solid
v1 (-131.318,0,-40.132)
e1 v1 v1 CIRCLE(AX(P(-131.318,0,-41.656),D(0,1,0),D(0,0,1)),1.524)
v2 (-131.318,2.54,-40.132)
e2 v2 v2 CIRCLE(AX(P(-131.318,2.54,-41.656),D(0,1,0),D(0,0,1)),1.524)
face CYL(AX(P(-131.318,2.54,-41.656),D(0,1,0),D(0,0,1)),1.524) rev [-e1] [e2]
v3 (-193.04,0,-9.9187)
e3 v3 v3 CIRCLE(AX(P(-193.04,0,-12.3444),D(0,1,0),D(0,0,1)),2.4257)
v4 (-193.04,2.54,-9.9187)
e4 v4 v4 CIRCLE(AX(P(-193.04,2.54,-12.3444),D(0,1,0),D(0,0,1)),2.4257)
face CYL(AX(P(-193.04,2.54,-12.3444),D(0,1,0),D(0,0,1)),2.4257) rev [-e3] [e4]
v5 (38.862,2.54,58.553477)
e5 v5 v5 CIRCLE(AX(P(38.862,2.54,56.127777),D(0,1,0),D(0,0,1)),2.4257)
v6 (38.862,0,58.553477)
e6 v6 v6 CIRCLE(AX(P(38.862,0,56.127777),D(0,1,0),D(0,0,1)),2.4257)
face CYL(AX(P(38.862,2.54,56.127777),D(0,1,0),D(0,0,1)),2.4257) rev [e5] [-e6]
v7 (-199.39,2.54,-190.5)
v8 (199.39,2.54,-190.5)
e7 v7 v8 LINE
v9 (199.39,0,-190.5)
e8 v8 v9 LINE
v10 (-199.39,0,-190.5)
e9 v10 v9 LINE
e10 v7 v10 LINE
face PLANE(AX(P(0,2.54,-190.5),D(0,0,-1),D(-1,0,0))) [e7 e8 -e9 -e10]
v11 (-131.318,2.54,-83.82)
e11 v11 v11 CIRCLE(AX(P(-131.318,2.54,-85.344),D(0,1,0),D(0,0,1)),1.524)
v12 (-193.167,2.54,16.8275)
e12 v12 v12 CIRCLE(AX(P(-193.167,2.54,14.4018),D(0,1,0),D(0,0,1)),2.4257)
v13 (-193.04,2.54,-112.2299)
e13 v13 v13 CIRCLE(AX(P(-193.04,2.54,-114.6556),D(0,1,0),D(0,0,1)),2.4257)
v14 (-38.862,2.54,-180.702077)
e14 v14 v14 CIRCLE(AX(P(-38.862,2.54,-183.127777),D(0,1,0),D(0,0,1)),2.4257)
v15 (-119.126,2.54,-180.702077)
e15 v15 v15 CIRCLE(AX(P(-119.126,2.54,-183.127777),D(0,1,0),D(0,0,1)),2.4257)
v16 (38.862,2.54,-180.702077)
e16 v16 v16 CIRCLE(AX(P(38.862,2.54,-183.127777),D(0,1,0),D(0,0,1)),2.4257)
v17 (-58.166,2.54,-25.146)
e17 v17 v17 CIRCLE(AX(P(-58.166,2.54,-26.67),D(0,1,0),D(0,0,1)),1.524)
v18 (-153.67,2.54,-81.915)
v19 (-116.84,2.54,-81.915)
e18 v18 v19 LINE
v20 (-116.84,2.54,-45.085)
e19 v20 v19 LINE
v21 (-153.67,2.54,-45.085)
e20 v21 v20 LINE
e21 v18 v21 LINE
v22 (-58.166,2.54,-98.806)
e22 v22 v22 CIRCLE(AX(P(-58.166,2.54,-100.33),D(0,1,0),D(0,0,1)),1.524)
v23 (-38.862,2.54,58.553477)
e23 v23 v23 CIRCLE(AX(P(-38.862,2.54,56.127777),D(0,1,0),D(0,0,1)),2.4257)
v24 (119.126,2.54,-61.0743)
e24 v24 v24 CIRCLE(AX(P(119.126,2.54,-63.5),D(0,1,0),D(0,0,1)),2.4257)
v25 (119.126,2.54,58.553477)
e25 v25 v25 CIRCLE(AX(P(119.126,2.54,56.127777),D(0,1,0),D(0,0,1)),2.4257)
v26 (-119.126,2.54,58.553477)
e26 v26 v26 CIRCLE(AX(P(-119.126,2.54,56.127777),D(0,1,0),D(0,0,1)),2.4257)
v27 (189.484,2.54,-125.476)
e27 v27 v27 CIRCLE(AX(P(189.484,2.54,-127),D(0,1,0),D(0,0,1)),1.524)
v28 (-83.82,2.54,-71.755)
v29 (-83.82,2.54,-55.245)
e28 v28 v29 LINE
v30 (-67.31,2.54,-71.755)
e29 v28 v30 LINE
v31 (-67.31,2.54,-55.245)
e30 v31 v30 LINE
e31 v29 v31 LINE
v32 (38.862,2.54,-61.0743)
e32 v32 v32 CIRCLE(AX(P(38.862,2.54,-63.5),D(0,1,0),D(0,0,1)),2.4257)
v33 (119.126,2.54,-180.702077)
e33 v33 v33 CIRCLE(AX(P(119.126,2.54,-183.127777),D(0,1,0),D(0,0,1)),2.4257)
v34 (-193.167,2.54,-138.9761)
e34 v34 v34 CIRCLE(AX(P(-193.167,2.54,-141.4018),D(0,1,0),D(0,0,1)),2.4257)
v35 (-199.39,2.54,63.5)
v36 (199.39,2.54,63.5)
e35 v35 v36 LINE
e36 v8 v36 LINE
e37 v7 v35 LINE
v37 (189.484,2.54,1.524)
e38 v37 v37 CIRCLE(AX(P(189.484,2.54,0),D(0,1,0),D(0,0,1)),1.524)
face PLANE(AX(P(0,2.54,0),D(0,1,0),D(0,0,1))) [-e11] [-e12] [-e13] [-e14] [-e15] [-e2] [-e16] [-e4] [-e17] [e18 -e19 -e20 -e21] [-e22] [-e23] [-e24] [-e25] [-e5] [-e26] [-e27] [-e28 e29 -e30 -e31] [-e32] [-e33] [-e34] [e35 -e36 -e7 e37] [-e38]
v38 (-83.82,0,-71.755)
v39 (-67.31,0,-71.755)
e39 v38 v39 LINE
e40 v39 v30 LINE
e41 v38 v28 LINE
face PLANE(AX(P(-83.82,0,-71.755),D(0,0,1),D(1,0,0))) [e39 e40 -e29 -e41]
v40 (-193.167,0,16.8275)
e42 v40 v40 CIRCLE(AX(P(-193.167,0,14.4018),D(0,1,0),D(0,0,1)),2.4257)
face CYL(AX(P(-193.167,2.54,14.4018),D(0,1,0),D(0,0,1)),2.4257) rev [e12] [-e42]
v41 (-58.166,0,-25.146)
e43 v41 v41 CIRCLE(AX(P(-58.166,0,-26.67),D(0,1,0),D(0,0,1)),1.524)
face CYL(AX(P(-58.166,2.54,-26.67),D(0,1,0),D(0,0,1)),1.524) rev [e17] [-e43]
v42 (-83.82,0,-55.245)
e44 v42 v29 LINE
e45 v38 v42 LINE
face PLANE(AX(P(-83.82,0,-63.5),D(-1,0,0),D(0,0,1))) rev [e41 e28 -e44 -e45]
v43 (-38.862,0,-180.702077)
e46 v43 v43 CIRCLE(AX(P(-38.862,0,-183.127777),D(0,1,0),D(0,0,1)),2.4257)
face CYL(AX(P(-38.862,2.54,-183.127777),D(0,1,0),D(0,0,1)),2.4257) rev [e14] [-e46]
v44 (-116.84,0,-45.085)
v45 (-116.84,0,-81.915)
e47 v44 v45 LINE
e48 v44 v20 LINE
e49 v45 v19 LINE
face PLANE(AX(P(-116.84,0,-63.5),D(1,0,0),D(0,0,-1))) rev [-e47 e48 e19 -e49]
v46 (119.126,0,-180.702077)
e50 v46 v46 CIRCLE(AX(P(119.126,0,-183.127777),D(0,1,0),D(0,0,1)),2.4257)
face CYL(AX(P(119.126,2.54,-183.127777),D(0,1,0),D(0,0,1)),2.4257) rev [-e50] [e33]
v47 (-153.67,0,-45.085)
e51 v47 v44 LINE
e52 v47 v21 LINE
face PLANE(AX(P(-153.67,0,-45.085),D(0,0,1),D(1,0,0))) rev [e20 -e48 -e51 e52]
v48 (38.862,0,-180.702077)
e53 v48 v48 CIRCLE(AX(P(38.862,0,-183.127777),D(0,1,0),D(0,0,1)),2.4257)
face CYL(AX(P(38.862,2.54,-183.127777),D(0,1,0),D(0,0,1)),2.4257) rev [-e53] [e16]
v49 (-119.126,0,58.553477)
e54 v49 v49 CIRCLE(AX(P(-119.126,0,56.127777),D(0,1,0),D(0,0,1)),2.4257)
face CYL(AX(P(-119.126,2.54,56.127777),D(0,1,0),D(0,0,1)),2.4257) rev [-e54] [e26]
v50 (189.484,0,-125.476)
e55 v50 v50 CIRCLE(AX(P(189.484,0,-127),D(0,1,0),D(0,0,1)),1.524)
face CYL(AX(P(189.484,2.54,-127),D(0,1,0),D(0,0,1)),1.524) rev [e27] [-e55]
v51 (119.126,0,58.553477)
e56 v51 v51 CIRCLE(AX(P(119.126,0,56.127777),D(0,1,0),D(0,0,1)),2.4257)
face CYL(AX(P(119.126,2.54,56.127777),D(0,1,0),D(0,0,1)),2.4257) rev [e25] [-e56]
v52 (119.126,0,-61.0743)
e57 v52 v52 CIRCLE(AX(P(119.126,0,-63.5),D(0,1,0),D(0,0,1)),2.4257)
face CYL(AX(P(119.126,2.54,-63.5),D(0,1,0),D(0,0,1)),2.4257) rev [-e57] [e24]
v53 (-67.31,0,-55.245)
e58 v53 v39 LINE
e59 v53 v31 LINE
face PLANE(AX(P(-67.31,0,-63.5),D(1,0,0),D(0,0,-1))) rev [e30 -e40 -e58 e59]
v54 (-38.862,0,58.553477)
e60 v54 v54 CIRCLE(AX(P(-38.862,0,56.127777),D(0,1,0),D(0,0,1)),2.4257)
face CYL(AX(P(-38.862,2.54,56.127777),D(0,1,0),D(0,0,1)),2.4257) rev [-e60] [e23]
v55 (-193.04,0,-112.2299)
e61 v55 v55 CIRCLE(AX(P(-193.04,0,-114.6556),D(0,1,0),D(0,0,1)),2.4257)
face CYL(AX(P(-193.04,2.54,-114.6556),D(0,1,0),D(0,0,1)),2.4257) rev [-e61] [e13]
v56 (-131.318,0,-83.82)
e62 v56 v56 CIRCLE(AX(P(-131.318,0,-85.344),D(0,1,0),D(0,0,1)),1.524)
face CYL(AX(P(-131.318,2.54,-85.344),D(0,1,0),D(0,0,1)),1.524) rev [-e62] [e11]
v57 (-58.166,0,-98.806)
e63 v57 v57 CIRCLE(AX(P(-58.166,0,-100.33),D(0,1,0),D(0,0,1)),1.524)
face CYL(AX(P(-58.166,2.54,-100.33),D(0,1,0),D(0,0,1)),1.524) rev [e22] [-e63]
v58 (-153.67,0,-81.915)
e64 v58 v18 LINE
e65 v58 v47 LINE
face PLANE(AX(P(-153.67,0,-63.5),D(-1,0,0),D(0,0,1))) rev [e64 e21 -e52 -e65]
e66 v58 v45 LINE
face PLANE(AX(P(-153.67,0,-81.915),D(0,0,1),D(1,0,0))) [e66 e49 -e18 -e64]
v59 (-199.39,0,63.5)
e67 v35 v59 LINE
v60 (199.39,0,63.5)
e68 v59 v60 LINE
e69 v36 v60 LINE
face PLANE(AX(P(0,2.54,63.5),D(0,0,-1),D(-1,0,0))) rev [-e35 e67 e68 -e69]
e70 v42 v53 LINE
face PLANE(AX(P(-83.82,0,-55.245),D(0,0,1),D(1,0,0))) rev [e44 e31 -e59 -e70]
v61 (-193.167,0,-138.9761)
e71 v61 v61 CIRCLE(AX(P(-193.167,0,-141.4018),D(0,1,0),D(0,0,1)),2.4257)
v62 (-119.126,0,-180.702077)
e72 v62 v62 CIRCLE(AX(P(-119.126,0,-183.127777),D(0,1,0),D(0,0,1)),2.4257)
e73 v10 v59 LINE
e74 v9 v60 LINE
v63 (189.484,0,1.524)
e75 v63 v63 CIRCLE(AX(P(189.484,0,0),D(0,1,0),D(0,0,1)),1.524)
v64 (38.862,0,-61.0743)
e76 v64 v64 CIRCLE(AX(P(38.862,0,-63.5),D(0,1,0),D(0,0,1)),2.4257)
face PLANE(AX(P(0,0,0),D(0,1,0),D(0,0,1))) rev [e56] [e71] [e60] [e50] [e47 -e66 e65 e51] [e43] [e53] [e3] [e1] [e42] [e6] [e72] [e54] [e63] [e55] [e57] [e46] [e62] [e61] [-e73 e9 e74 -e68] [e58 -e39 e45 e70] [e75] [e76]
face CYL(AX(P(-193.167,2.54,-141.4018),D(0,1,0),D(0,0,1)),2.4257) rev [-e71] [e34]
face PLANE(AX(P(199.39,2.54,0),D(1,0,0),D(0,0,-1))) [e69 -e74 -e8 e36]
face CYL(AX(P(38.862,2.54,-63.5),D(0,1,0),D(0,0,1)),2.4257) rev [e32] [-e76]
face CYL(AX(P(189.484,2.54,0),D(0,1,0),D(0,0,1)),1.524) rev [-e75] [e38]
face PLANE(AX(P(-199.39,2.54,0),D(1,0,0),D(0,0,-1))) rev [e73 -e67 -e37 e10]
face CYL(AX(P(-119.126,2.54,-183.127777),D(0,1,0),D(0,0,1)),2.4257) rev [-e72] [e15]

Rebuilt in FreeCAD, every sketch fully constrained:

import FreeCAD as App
import Part
import Sketcher

V = App.Vector
Q = App.Units.Quantity

doc = App.newDocument("Part")
params = doc.addObject("Spreadsheet::Sheet", "Params")
for row, (alias, value) in enumerate([
    ("sketch1_height", "5 in"),
    ("sketch1_width", "15.7 in"),
    ("pad1_length", "0.1 in"),
    ("sketch2_diameter", "0.191 in"),
    ("hole_diameter", "0.191 in"),
    ("sketch3_diameter", "0.191 in"),
    ("hole2_diameter", "0.191 in"),
    ("sketch4_width", "1.45 in"),
    ("sketch4_width2", "0.65 in"),
    ("sketch4_height", "0.725 in"),
    ("pocket1_length", "0.1 in"),
    ("sketch5_diameter", "0.191 in"),
    ("hole3_diameter", "0.191 in"),
    ("sketch6_diameter", "0.12 in"),
    ("hole4_diameter", "0.12 in"),
    ("sketch7_diameter", "0.12 in"),
    ("hole5_diameter", "0.12 in"),
    ("sketch8_diameter", "0.12 in"),
    ("hole6_diameter", "0.12 in"),
], start=1):
    params.set(f"A{row}", alias)
    params.set(f"B{row}", "=" + value)
    params.setAlias(f"B{row}", alias)

body = doc.addObject("PartDesign::Body", "Body")

# Sketch on XZ plane
sketch1 = doc.addObject("Sketcher::SketchObject", "Sketch")
body.addObject(sketch1)
sketch1.AttachmentSupport = (doc.XZ_Plane, [""])
sketch1.MapMode = "FlatFace"
sketch1.addGeometry([
    Part.LineSegment(V(-199, -64, 0), V(-199, 64, 0)),
    Part.LineSegment(V(-199, 64, 0), V(199, 64, 0)),
    Part.LineSegment(V(199, 64, 0), V(199, -64, 0)),
    Part.LineSegment(V(199, -64, 0), V(-199, -64, 0)),
], False)
sketch1.addConstraint([
    Sketcher.Constraint("Coincident", 0, 2, 1, 1),
    Sketcher.Constraint("Coincident", 1, 2, 2, 1),
    Sketcher.Constraint("Coincident", 2, 2, 3, 1),
    Sketcher.Constraint("Coincident", 3, 2, 0, 1),
    Sketcher.Constraint("Vertical", 0),
    Sketcher.Constraint("Horizontal", 1),
    Sketcher.Constraint("Vertical", 2),
    Sketcher.Constraint("Horizontal", 3),
    Sketcher.Constraint("Symmetric", 0, 2, 2, 2, -1, 1),
    Sketcher.Constraint("DistanceY", 0, 1, 0, 2, Q("5 in")),
    Sketcher.Constraint("DistanceX", 1, 1, 1, 2, Q("15.7 in")),
])
sketch1.setExpression("Constraints[9]", "Params.sketch1_height")
sketch1.setExpression("Constraints[10]", "Params.sketch1_width")
pad1 = doc.addObject("PartDesign::Pad", "Pad")
body.addObject(pad1)
pad1.Profile = sketch1
pad1.setExpression("Length", "Params.pad1_length")
pad1.Reversed = True

# Sketch on XZ plane
sketch2 = doc.addObject("Sketcher::SketchObject", "Sketch001")
body.addObject(sketch2)
sketch2.AttachmentSupport = (doc.XZ_Plane, [""])
sketch2.MapMode = "FlatFace"
sketch2.AttachmentOffset = App.Placement(V(0, 0, -0.1 * 25.4), App.Rotation())
sketch2.addGeometry([
    Part.Circle(V(-193.2, 14.4, 0), V(0, 0, 1), 2.4),
    Part.Circle(V(-193, -12.3, 0), V(0, 0, 1), 2.4),
], False)
sketch2.addConstraint([
    Sketcher.Constraint("Equal", 0, 1),
    Sketcher.Constraint("Diameter", 0, Q("0.191 in")),
    Sketcher.Constraint("DistanceX", 1, 3, -1, 1, Q("7.6 in")),
    Sketcher.Constraint("DistanceX", 0, 3, -1, 1, Q("7.605 in")),
    Sketcher.Constraint("DistanceY", -1, 1, 0, 3, Q("0.567 in")),
    Sketcher.Constraint("DistanceY", 1, 3, -1, 1, Q("0.486 in")),
])
sketch2.setExpression("Constraints[1]", "Params.sketch2_diameter")
doc.recompute()
hole = doc.addObject("PartDesign::Hole", "Hole")
body.addObject(hole)
hole.Profile = sketch2
hole.ThreadType = "None"
hole.setExpression("Diameter", "Params.hole_diameter")
hole.DepthType = "ThroughAll"
hole.Reversed = True

# Sketch on XZ plane
sketch3 = doc.addObject("Sketcher::SketchObject", "Sketch002")
body.addObject(sketch3)
sketch3.AttachmentSupport = (doc.XZ_Plane, [""])
sketch3.MapMode = "FlatFace"
sketch3.AttachmentOffset = App.Placement(V(0, 0, -0.1 * 25.4), App.Rotation())
sketch3.addGeometry([
    Part.Circle(V(-119.1, 56.1, 0), V(0, 0, 1), 2.4),
    Part.Circle(V(-38.9, 56.1, 0), V(0, 0, 1), 2.4),
    Part.Circle(V(38.9, 56.1, 0), V(0, 0, 1), 2.4),
    Part.Circle(V(119.1, 56.1, 0), V(0, 0, 1), 2.4),
], False)
sketch3.addConstraint([
    Sketcher.Constraint("Equal", 0, 1),
    Sketcher.Constraint("Equal", 1, 2),
    Sketcher.Constraint("Equal", 2, 3),
    Sketcher.Constraint("Symmetric", 1, 3, 2, 3, -2),
    Sketcher.Constraint("Symmetric", 0, 3, 3, 3, -2),
    Sketcher.Constraint("Horizontal", 0, 3, 1, 3),
    Sketcher.Constraint("Diameter", 0, Q("0.191 in")),
    Sketcher.Constraint("DistanceX", 0, 3, -1, 1, Q("4.69 in")),
    Sketcher.Constraint("DistanceX", 1, 3, -1, 1, Q("1.53 in")),
    Sketcher.Constraint("DistanceY", -1, 1, 0, 3, Q("56.127777 mm")),
])
sketch3.setExpression("Constraints[6]", "Params.sketch3_diameter")
doc.recompute()
hole2 = doc.addObject("PartDesign::Hole", "Hole001")
body.addObject(hole2)
hole2.Profile = sketch3
hole2.ThreadType = "None"
hole2.setExpression("Diameter", "Params.hole2_diameter")
hole2.DepthType = "ThroughAll"
hole2.Reversed = True

# Sketch on XZ plane
sketch4 = doc.addObject("Sketcher::SketchObject", "Sketch003")
body.addObject(sketch4)
sketch4.AttachmentSupport = (doc.XZ_Plane, [""])
sketch4.MapMode = "FlatFace"
sketch4.AttachmentOffset = App.Placement(V(0, 0, -0.1 * 25.4), App.Rotation())
sketch4.addGeometry([
    Part.LineSegment(V(-154, -64, 0), V(-154, -45, 0)),  # 0
    Part.LineSegment(V(-154, -45, 0), V(-117, -45, 0)),  # 1
    Part.LineSegment(V(-117, -45, 0), V(-117, -64, 0)),  # 2
    Part.LineSegment(V(-117, -64, 0), V(-154, -64, 0)),  # 3
    Part.LineSegment(V(-84, -64, 0), V(-84, -55, 0)),  # 4
    Part.LineSegment(V(-84, -55, 0), V(-67, -55, 0)),  # 5
    Part.LineSegment(V(-67, -55, 0), V(-67, -64, 0)),  # 6
    Part.LineSegment(V(-67, -64, 0), V(-84, -64, 0)),  # 7
], False)
sketch4.addConstraint([
    Sketcher.Constraint("Coincident", 0, 2, 1, 1),
    Sketcher.Constraint("Coincident", 1, 2, 2, 1),
    Sketcher.Constraint("Coincident", 2, 2, 3, 1),
    Sketcher.Constraint("Coincident", 3, 2, 0, 1),
    Sketcher.Constraint("Coincident", 4, 2, 5, 1),
    Sketcher.Constraint("Coincident", 5, 2, 6, 1),
    Sketcher.Constraint("Coincident", 6, 2, 7, 1),
    Sketcher.Constraint("Coincident", 7, 2, 4, 1),
    Sketcher.Constraint("Vertical", 0),
    Sketcher.Constraint("Horizontal", 1),
    Sketcher.Constraint("Vertical", 2),
    Sketcher.Constraint("Horizontal", 3),
    Sketcher.Constraint("Vertical", 4),
    Sketcher.Constraint("Horizontal", 5),
    Sketcher.Constraint("Vertical", 6),
    Sketcher.Constraint("Horizontal", 7),
    Sketcher.Constraint("Horizontal", 3, 2, 6, 2),
    Sketcher.Constraint("DistanceX", 1, 1, 1, 2, Q("1.45 in")),
    Sketcher.Constraint("DistanceX", 5, 1, 5, 2, Q("0.65 in")),
    Sketcher.Constraint("DistanceX", 1, 2, -1, 1, Q("4.6 in")),
    Sketcher.Constraint("DistanceY", 2, 2, -1, 1, Q("2.5 in")),
    Sketcher.Constraint("DistanceX", 4, 2, -1, 1, Q("3.3 in")),
    Sketcher.Constraint("DistanceY", 4, 2, 1, 2, Q("0.4 in")),
    Sketcher.Constraint("DistanceY", 0, 1, 0, 2, Q("0.725 in")),
])
sketch4.setExpression("Constraints[17]", "Params.sketch4_width")
sketch4.setExpression("Constraints[18]", "Params.sketch4_width2")
sketch4.setExpression("Constraints[23]", "Params.sketch4_height")
pocket1 = doc.addObject("PartDesign::Pocket", "Pocket")
body.addObject(pocket1)
pocket1.Profile = sketch4
pocket1.setExpression("Length", "Params.pocket1_length")
pocket1.Reversed = True
doc.recompute()

datumplane = doc.addObject("PartDesign::Plane", "DatumPlane")
body.addObject(datumplane)
datumplane.AttachmentSupport = (doc.XY_Plane, [""])
datumplane.MapMode = "FlatFace"
datumplane.AttachmentOffset = App.Placement(V(0, 0, -2.5 * 25.4), App.Rotation())
mirrored = doc.addObject("PartDesign::Mirrored", "Mirrored")
body.addObject(mirrored)
mirrored.Originals = [pad1, hole, hole2, pocket1]
mirrored.MirrorPlane = (datumplane, [""])
body.Tip = mirrored

# Sketch on XZ plane
sketch5 = doc.addObject("Sketcher::SketchObject", "Sketch004")
body.addObject(sketch5)
sketch5.AttachmentSupport = (doc.XZ_Plane, [""])
sketch5.MapMode = "FlatFace"
sketch5.AttachmentOffset = App.Placement(V(0, 0, -0.1 * 25.4), App.Rotation())
sketch5.addGeometry([
    Part.Circle(V(119.1, -63.5, 0), V(0, 0, 1), 2.4),
    Part.Circle(V(38.9, -63.5, 0), V(0, 0, 1), 2.4),
], False)
sketch5.addConstraint([
    Sketcher.Constraint("Equal", 0, 1),
    Sketcher.Constraint("Horizontal", 0, 3, 1, 3),
    Sketcher.Constraint("Diameter", 0, Q("0.191 in")),
    Sketcher.Constraint("DistanceY", 0, 3, -1, 1, Q("2.5 in")),
    Sketcher.Constraint("DistanceX", -1, 1, 0, 3, Q("4.69 in")),
    Sketcher.Constraint("DistanceX", -1, 1, 1, 3, Q("1.53 in")),
])
sketch5.setExpression("Constraints[2]", "Params.sketch5_diameter")
doc.recompute()
hole3 = doc.addObject("PartDesign::Hole", "Hole002")
body.addObject(hole3)
hole3.Profile = sketch5
hole3.ThreadType = "None"
hole3.setExpression("Diameter", "Params.hole3_diameter")
hole3.DepthType = "ThroughAll"
hole3.Reversed = True

# Sketch on XZ plane
sketch6 = doc.addObject("Sketcher::SketchObject", "Sketch005")
body.addObject(sketch6)
sketch6.AttachmentSupport = (doc.XZ_Plane, [""])
sketch6.MapMode = "FlatFace"
sketch6.AttachmentOffset = App.Placement(V(0, 0, -0.1 * 25.4), App.Rotation())
sketch6.addGeometry([
    Part.Circle(V(-131.3, -41.7, 0), V(0, 0, 1), 1.5),
    Part.Circle(V(-131.3, -85.3, 0), V(0, 0, 1), 1.5),
], False)
sketch6.addConstraint([
    Sketcher.Constraint("Equal", 0, 1),
    Sketcher.Constraint("Vertical", 0, 3, 1, 3),
    Sketcher.Constraint("Diameter", 0, Q("0.12 in")),
    Sketcher.Constraint("DistanceX", 0, 3, -1, 1, Q("5.17 in")),
    Sketcher.Constraint("DistanceY", 0, 3, -1, 1, Q("1.64 in")),
    Sketcher.Constraint("DistanceY", 1, 3, -1, 1, Q("3.36 in")),
])
sketch6.setExpression("Constraints[2]", "Params.sketch6_diameter")
doc.recompute()
hole4 = doc.addObject("PartDesign::Hole", "Hole003")
body.addObject(hole4)
hole4.Profile = sketch6
hole4.ThreadType = "None"
hole4.setExpression("Diameter", "Params.hole4_diameter")
hole4.DepthType = "ThroughAll"
hole4.Reversed = True

# Sketch on XZ plane
sketch7 = doc.addObject("Sketcher::SketchObject", "Sketch006")
body.addObject(sketch7)
sketch7.AttachmentSupport = (doc.XZ_Plane, [""])
sketch7.MapMode = "FlatFace"
sketch7.AttachmentOffset = App.Placement(V(0, 0, -0.1 * 25.4), App.Rotation())
sketch7.addGeometry([
    Part.Circle(V(-58.2, -100.3, 0), V(0, 0, 1), 1.5),
    Part.Circle(V(-58.2, -26.7, 0), V(0, 0, 1), 1.5),
], False)
sketch7.addConstraint([
    Sketcher.Constraint("Equal", 0, 1),
    Sketcher.Constraint("Vertical", 0, 3, 1, 3),
    Sketcher.Constraint("Diameter", 0, Q("0.12 in")),
    Sketcher.Constraint("DistanceY", 0, 3, 1, 3, Q("2.9 in")),
    Sketcher.Constraint("DistanceX", 0, 3, -1, 1, Q("2.29 in")),
    Sketcher.Constraint("DistanceY", 0, 3, -1, 1, Q("3.95 in")),
])
sketch7.setExpression("Constraints[2]", "Params.sketch7_diameter")
doc.recompute()
hole5 = doc.addObject("PartDesign::Hole", "Hole004")
body.addObject(hole5)
hole5.Profile = sketch7
hole5.ThreadType = "None"
hole5.setExpression("Diameter", "Params.hole5_diameter")
hole5.DepthType = "ThroughAll"
hole5.Reversed = True

# Sketch on XZ plane
sketch8 = doc.addObject("Sketcher::SketchObject", "Sketch007")
body.addObject(sketch8)
sketch8.AttachmentSupport = (doc.XZ_Plane, [""])
sketch8.MapMode = "FlatFace"
sketch8.AttachmentOffset = App.Placement(V(0, 0, -0.1 * 25.4), App.Rotation())
sketch8.addGeometry([
    Part.Circle(V(189.5, 0, 0), V(0, 0, 1), 1.5),
    Part.Circle(V(189.5, -127, 0), V(0, 0, 1), 1.5),
], False)
sketch8.addConstraint([
    Sketcher.Constraint("Equal", 0, 1),
    Sketcher.Constraint("PointOnObject", 0, 3, -1),
    Sketcher.Constraint("Vertical", 0, 3, 1, 3),
    Sketcher.Constraint("Diameter", 0, Q("0.12 in")),
    Sketcher.Constraint("DistanceY", 1, 3, -1, 1, Q("5 in")),
    Sketcher.Constraint("DistanceX", -1, 1, 0, 3, Q("7.46 in")),
])
sketch8.setExpression("Constraints[3]", "Params.sketch8_diameter")
doc.recompute()
hole6 = doc.addObject("PartDesign::Hole", "Hole005")
body.addObject(hole6)
hole6.Profile = sketch8
hole6.ThreadType = "None"
hole6.setExpression("Diameter", "Params.hole6_diameter")
hole6.DepthType = "ThroughAll"
hole6.Reversed = True

doc.recompute()
